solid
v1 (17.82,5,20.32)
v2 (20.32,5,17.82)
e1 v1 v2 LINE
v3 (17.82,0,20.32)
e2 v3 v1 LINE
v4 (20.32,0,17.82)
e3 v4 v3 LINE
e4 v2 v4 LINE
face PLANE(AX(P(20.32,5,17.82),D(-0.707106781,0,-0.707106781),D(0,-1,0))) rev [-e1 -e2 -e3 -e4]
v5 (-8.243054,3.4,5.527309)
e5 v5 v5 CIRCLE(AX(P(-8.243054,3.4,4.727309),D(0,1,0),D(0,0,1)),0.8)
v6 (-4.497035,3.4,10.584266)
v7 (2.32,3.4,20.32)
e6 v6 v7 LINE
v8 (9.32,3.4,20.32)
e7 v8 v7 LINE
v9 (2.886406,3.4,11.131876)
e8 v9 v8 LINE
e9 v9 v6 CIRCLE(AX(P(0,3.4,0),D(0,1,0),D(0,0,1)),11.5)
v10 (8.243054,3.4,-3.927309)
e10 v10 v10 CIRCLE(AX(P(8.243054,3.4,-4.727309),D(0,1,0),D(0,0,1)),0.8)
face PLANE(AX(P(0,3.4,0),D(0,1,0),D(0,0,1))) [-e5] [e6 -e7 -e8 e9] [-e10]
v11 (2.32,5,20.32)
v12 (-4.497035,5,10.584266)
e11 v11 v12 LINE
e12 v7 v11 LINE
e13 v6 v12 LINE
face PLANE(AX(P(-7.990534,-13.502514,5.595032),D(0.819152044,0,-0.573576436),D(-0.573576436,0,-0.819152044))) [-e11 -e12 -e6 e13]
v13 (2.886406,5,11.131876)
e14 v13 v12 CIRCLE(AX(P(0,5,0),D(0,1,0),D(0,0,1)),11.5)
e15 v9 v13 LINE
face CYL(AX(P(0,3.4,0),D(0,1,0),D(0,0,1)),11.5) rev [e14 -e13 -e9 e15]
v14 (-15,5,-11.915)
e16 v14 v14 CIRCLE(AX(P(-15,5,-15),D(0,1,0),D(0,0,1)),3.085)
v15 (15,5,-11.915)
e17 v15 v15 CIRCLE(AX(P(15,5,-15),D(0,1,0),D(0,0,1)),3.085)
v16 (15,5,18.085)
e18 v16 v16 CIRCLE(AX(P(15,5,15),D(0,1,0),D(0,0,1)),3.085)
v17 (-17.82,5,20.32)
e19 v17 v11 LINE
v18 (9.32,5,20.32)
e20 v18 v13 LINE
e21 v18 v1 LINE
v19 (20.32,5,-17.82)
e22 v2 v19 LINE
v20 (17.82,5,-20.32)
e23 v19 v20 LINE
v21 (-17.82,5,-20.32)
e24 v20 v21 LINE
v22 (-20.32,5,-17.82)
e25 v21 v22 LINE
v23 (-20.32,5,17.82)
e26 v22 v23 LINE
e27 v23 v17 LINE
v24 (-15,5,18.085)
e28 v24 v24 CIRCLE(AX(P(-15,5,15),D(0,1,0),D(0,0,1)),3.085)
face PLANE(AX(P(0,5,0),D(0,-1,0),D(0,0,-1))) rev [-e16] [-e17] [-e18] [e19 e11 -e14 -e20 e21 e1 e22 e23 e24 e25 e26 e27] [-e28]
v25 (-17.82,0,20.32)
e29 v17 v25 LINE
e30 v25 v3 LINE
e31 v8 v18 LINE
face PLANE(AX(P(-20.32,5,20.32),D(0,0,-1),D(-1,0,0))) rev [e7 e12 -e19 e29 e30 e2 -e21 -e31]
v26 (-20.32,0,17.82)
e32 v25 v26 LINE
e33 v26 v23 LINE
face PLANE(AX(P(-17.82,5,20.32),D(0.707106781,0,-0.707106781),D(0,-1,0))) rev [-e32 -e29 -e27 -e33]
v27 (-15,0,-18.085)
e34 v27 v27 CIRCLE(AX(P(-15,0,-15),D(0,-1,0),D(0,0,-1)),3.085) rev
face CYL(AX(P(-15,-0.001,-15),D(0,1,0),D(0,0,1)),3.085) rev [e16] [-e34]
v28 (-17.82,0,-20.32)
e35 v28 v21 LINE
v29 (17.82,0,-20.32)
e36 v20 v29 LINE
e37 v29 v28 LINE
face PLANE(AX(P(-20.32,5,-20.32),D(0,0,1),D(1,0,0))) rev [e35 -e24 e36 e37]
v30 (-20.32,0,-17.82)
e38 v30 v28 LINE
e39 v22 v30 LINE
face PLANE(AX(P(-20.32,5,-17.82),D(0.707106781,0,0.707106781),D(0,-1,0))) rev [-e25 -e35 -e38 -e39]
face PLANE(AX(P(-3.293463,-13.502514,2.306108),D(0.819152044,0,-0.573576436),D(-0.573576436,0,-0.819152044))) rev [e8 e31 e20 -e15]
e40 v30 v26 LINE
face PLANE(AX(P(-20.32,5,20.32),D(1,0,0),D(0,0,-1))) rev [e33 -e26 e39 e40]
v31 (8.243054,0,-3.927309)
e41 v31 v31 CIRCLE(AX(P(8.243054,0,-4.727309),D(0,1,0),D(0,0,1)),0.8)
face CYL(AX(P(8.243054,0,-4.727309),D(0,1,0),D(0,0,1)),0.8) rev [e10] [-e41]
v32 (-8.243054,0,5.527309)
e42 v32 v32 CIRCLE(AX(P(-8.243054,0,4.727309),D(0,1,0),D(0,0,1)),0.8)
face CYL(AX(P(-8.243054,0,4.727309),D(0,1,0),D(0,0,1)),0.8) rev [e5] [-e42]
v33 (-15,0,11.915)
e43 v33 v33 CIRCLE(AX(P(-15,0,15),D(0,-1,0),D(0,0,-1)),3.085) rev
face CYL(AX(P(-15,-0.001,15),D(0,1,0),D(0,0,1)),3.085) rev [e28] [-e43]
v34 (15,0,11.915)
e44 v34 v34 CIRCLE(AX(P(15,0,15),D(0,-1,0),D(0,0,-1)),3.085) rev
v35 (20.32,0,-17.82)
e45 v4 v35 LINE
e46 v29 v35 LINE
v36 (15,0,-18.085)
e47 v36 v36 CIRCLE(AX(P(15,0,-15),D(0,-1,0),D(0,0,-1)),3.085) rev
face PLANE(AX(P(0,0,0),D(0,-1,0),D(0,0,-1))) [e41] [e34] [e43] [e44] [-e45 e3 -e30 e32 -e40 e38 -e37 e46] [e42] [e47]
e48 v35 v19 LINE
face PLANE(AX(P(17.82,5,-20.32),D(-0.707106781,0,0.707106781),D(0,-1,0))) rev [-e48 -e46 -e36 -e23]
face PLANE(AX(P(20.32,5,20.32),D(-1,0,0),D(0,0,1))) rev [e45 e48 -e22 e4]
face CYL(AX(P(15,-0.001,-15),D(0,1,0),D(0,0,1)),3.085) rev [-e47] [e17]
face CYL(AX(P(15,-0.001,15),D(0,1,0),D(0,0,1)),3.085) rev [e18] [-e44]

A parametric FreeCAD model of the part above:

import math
import FreeCAD as App
import Part
import Sketcher

V = App.Vector
Q = App.Units.Quantity


def edges_at(feature, points):
    """Names of the edges that pass closest to the given points."""
    edges = feature.Shape.Edges
    near = lambda p: min(range(len(edges)), key=lambda i: edges[i].distToShape(Part.Vertex(*p))[0])
    return sorted({f"Edge{near(p) + 1}" for p in points})

doc = App.newDocument("Part")
body = doc.addObject("PartDesign::Body", "Body")

# Sketch on XZ plane
sketch1 = body.newObject("Sketcher::SketchObject", "Sketch")
sketch1.AttachmentSupport = (doc.getObject("XZ_Plane"), [""])
sketch1.MapMode = "FlatFace"
sketch1.addGeometry([
    Part.LineSegment(V(-20, -20, 0), V(-20, 20, 0)),
    Part.LineSegment(V(-20, 20, 0), V(20, 20, 0)),
    Part.LineSegment(V(20, 20, 0), V(20, -20, 0)),
    Part.LineSegment(V(20, -20, 0), V(-20, -20, 0)),
], False)
sketch1.addConstraint([
    Sketcher.Constraint("Coincident", 0, 2, 1, 1),
    Sketcher.Constraint("Coincident", 1, 2, 2, 1),
    Sketcher.Constraint("Coincident", 2, 2, 3, 1),
    Sketcher.Constraint("Coincident", 3, 2, 0, 1),
    Sketcher.Constraint("Vertical", 0),
    Sketcher.Constraint("Horizontal", 1),
    Sketcher.Constraint("Vertical", 2),
    Sketcher.Constraint("Horizontal", 3),
    Sketcher.Constraint("Symmetric", 0, 2, 2, 2, -1, 1),
    Sketcher.Constraint("Equal", 3, 0),
    Sketcher.Constraint("DistanceX", 1, 1, 1, 2, Q("40.64 mm")),
])
pad1 = body.newObject("PartDesign::Pad", "Pad")
pad1.Profile = sketch1
pad1.Length = 5
pad1.Reversed = True

# Sketch on XZ plane
sketch2 = body.newObject("Sketcher::SketchObject", "Sketch001")
sketch2.AttachmentSupport = (doc.getObject("XZ_Plane"), [""])
sketch2.MapMode = "FlatFace"
sketch2.AttachmentOffset = App.Placement(V(0, 0, -5), App.Rotation())
sketch2.addGeometry(Part.Circle(V(-15, -15, 0), V(0, 0, 1), 3.1), False)
sketch2.addConstraint([
    Sketcher.Constraint("Diameter", 0, Q("6.17 mm")),
    Sketcher.Constraint("DistanceX", 0, 3, -1, 1, Q("15 mm")),
    Sketcher.Constraint("DistanceY", 0, 3, -1, 1, Q("15 mm")),
])
pocket1 = body.newObject("PartDesign::Pocket", "Pocket")
pocket1.Profile = sketch2
pocket1.Type = "UpToFirst"
pocket1.Reversed = True

# Sketch on XZ plane
sketch3 = body.newObject("Sketcher::SketchObject", "Sketch002")
sketch3.AttachmentSupport = (doc.getObject("XZ_Plane"), [""])
sketch3.MapMode = "FlatFace"
sketch3.AttachmentOffset = App.Placement(V(0, 0, -5), App.Rotation())
sketch3.addGeometry(Part.Circle(V(15, -15, 0), V(0, 0, 1), 3.1), False)
sketch3.addConstraint([
    Sketcher.Constraint("Diameter", 0, Q("6.17 mm")),
    Sketcher.Constraint("DistanceX", -1, 1, 0, 3, Q("15 mm")),
    Sketcher.Constraint("DistanceY", 0, 3, -1, 1, Q("15 mm")),
])
pocket2 = body.newObject("PartDesign::Pocket", "Pocket001")
pocket2.Profile = sketch3
pocket2.Type = "UpToFirst"
pocket2.Reversed = True

# Sketch on XZ plane
sketch4 = body.newObject("Sketcher::SketchObject", "Sketch003")
sketch4.AttachmentSupport = (doc.getObject("XZ_Plane"), [""])
sketch4.MapMode = "FlatFace"
sketch4.AttachmentOffset = App.Placement(V(0, 0, -5), App.Rotation())
sketch4.addGeometry(Part.Circle(V(15, 15, 0), V(0, 0, 1), 3.1), False)
sketch4.addConstraint([
    Sketcher.Constraint("Diameter", 0, Q("6.17 mm")),
    Sketcher.Constraint("DistanceX", -1, 1, 0, 3, Q("15 mm")),
    Sketcher.Constraint("DistanceY", -1, 1, 0, 3, Q("15 mm")),
])
pocket3 = body.newObject("PartDesign::Pocket", "Pocket002")
pocket3.Profile = sketch4
pocket3.Type = "UpToFirst"
pocket3.Reversed = True

# Sketch on XZ plane
sketch5 = body.newObject("Sketcher::SketchObject", "Sketch004")
sketch5.AttachmentSupport = (doc.getObject("XZ_Plane"), [""])
sketch5.MapMode = "FlatFace"
sketch5.AttachmentOffset = App.Placement(V(0, 0, -5), App.Rotation())
sketch5.addGeometry(Part.Circle(V(-15, 15, 0), V(0, 0, 1), 3.1), False)
sketch5.addConstraint([
    Sketcher.Constraint("Diameter", 0, Q("6.17 mm")),
    Sketcher.Constraint("DistanceX", 0, 3, -1, 1, Q("15 mm")),
    Sketcher.Constraint("DistanceY", -1, 1, 0, 3, Q("15 mm")),
])
pocket4 = body.newObject("PartDesign::Pocket", "Pocket003")
pocket4.Profile = sketch5
pocket4.Type = "UpToFirst"
pocket4.Reversed = True
doc.recompute()

chamfer = body.newObject("PartDesign::Chamfer", "Chamfer")
chamfer.Base = (pocket4, edges_at(pocket4, [
    (20.32, 2.5, 20.32),
    (-20.32, 2.5, 20.32),
    (-20.32, 2.5, -20.32),
    (20.32, 2.5, -20.32),
]))
chamfer.Size = 2.5

# Sketch on XZ plane
sketch6 = body.newObject("Sketcher::SketchObject", "Sketch005")
sketch6.AttachmentSupport = (doc.getObject("XZ_Plane"), [""])
sketch6.MapMode = "FlatFace"
sketch6.AttachmentOffset = App.Placement(V(0, 0, -5), App.Rotation())
sketch6.addGeometry(Part.Circle(V(0, 0, 0), V(0, 0, 1), 12), False)
sketch6.addConstraint([
    Sketcher.Constraint("Coincident", 0, 3, -1, 1),
    Sketcher.Constraint("Diameter", 0, Q("23 mm")),
])
pocket5 = body.newObject("PartDesign::Pocket", "Pocket004")
pocket5.Profile = sketch6
pocket5.Length = 1.6
pocket5.Reversed = True

# Sketch on XZ plane
sketch7 = body.newObject("Sketcher::SketchObject", "Sketch006")
sketch7.AttachmentSupport = (doc.getObject("XZ_Plane"), [""])
sketch7.MapMode = "FlatFace"
sketch7.AttachmentOffset = App.Placement(V(0, 0, -3.4), App.Rotation())
sketch7.addGeometry([
    Part.Circle(V(-8.2, 4.7, 0), V(0, 0, 1), 0.8),
    Part.Circle(V(8.2, -4.7, 0), V(0, 0, 1), 0.8),
], False)
sketch7.addConstraint([
    Sketcher.Constraint("Equal", 0, 1),
    Sketcher.Constraint("Symmetric", 0, 3, 1, 3, -1, 1),
    Sketcher.Constraint("Diameter", 0, Q("1.6 mm")),
    Sketcher.Constraint("DistanceY", -1, 1, 0, 3, Q("4.727309 mm")),
    Sketcher.Constraint("DistanceX", 0, 3, -1, 1, Q("8.243054 mm")),
])
pocket6 = body.newObject("PartDesign::Pocket", "Pocket005")
pocket6.Profile = sketch7
pocket6.Type = "ThroughAll"
pocket6.Reversed = True

# Sketch on XZ plane
sketch8 = body.newObject("Sketcher::SketchObject", "Sketch007")
sketch8.AttachmentSupport = (doc.getObject("XZ_Plane"), [""])
sketch8.MapMode = "FlatFace"
sketch8.AttachmentOffset = App.Placement(V(0, 0, -5), App.Rotation())
sketch8.addGeometry([
    Part.ArcOfCircle(Part.Circle(V(0, 0, 0), V(0, 0, 1), 11), math.radians(75), math.radians(113)),
    Part.LineSegment(V(-4, 11, 0), V(2, 20, 0)),
    Part.LineSegment(V(2, 20, 0), V(9, 20, 0)),
    Part.LineSegment(V(9, 20, 0), V(3, 11, 0)),
], False)
sketch8.addConstraint([
    Sketcher.Constraint("Coincident", 0, 2, 1, 1),
    Sketcher.Constraint("Coincident", 1, 2, 2, 1),
    Sketcher.Constraint("Coincident", 2, 2, 3, 1),
    Sketcher.Constraint("Coincident", 3, 2, 0, 1),
    Sketcher.Constraint("Horizontal", 2),
    Sketcher.Constraint("Coincident", 0, 3, -1, 1),
    Sketcher.Constraint("Parallel", 1, 3),
    Sketcher.Constraint("Radius", 0, Q("11.5 mm")),
    Sketcher.Constraint("DistanceX", 2, 1, 2, 2, Q("7 mm")),
    Sketcher.Constraint("Angle", 1, Q("55 deg")),
    Sketcher.Constraint("DistanceX", -1, 1, 1, 2, Q("2.32 mm")),
    Sketcher.Constraint("DistanceY", -1, 1, 1, 2, Q("20.32 mm")),
])
pocket7 = body.newObject("PartDesign::Pocket", "Pocket006")
pocket7.Profile = sketch8
pocket7.Length = 1.6
pocket7.Reversed = True

doc.recompute()
